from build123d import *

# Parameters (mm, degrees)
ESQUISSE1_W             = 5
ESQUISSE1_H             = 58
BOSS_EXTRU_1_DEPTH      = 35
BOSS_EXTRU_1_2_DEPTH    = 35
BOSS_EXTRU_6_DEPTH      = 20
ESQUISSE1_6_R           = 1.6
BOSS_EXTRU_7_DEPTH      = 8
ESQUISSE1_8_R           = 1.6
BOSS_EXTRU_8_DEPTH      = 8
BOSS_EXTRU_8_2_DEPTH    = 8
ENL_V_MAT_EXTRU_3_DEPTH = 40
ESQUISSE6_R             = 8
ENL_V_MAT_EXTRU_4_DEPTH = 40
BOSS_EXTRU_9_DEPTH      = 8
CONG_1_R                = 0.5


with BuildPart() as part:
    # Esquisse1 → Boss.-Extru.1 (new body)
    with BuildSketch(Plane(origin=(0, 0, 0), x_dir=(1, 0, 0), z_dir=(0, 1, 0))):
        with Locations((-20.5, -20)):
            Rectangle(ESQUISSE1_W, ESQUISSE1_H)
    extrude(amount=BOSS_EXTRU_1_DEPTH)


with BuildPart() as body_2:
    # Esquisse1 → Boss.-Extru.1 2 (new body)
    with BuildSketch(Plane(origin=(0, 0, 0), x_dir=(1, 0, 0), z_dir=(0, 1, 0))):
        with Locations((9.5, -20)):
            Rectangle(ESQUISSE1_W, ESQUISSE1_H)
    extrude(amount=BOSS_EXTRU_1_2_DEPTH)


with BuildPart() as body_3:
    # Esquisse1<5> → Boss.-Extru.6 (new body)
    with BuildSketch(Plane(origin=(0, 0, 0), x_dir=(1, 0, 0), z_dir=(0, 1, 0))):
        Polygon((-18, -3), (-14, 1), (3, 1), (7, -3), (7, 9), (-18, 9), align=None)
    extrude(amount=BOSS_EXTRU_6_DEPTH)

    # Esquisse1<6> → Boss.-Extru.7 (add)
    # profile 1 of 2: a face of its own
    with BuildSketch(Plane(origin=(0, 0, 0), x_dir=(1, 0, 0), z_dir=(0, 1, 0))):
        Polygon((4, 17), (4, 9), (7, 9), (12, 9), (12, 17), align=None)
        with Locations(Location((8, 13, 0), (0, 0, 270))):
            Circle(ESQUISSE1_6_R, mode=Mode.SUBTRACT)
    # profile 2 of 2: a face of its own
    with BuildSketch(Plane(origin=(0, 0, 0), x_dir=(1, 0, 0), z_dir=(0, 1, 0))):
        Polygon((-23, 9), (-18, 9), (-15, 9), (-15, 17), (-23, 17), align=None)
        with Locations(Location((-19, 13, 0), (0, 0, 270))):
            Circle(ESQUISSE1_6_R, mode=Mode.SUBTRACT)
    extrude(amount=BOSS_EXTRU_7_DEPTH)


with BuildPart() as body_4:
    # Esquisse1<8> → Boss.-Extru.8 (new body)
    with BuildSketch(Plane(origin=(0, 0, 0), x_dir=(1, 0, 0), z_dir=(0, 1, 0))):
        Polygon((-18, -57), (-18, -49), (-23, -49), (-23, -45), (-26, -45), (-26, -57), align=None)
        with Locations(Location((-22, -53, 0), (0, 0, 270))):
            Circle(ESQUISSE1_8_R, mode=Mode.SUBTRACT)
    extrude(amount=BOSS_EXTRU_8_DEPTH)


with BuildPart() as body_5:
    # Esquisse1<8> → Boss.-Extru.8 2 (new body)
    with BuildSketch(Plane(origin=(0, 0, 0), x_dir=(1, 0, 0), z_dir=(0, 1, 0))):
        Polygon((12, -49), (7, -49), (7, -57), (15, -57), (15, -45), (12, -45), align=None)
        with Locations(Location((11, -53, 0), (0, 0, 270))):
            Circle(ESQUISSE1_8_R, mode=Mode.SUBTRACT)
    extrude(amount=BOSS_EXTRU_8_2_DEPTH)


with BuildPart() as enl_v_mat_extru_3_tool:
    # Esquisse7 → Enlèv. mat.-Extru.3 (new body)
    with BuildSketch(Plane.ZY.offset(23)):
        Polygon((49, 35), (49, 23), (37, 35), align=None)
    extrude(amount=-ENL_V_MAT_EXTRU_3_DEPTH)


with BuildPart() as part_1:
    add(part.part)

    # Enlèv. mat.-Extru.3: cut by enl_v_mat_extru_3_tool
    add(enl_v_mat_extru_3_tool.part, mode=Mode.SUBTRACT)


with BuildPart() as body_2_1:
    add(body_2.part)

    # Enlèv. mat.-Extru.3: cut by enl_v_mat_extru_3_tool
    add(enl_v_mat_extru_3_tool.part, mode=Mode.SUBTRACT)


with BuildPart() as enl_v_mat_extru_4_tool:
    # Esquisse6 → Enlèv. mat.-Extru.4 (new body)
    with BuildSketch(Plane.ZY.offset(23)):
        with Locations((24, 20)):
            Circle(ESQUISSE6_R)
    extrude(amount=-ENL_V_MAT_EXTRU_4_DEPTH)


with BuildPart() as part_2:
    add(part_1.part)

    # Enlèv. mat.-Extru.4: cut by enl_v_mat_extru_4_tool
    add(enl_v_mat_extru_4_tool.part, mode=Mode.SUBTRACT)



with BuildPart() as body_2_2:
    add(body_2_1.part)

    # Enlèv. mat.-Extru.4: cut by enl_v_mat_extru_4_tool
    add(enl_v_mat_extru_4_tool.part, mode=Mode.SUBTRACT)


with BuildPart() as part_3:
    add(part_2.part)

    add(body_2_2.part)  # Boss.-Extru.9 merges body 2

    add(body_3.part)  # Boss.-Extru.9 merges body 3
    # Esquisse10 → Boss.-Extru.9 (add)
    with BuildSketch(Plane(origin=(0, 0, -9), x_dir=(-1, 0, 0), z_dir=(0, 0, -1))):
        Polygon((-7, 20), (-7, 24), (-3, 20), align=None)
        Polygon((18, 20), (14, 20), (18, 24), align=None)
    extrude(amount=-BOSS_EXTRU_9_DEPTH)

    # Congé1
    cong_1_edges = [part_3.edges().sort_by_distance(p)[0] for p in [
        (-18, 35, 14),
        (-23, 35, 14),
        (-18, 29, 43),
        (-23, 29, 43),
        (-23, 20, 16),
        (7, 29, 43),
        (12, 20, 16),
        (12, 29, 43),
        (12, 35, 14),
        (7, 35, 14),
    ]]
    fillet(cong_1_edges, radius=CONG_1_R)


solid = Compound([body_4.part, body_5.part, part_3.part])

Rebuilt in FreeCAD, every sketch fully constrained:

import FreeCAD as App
import Part
import Sketcher
Q = App.Units.Quantity


def edges_at(feature, points):
    """Names of the edges that pass closest to the given points."""
    edges = feature.Shape.Edges
    near = lambda p: min(range(len(edges)), key=lambda i: edges[i].distToShape(Part.Vertex(*p))[0])
    return sorted({f"Edge{near(p) + 1}" for p in points})


def add_polygon(sketch, points):
    """Adds a closed chain of lines whose ends are joined by coincident constraints."""
    first, n = sketch.GeometryCount, len(points)
    for a, b in zip(points, points[1:] + points[:1]):
        sketch.addGeometry(Part.LineSegment(App.Vector(*a, 0), App.Vector(*b, 0)), False)
    for i in range(n):
        sketch.addConstraint(Sketcher.Constraint("Coincident", first + i, 2, first + (i + 1) % n, 1))

doc = App.newDocument("Part")
body = doc.addObject("PartDesign::Body", "Body")

# Sketch on XZ plane
sketch1 = body.newObject("Sketcher::SketchObject", "Sketch")
sketch1.AttachmentSupport = (doc.getObject("XZ_Plane"), [""])
sketch1.MapMode = "FlatFace"
add_polygon(sketch1, [(-23, -9), (-23, 49), (-18, 49), (-18, -9)])  # lines 0-3
sketch1.addConstraint(Sketcher.Constraint("Vertical", 0))
sketch1.addConstraint(Sketcher.Constraint("Horizontal", 1))
sketch1.addConstraint(Sketcher.Constraint("Vertical", 2))
sketch1.addConstraint(Sketcher.Constraint("Horizontal", 3))
sketch1.addConstraint(Sketcher.Constraint("DistanceX", 1, 1, 1, 2, Q("5 mm")))
sketch1.addConstraint(Sketcher.Constraint("DistanceY", 0, 1, 0, 2, Q("58 mm")))
sketch1.addConstraint(Sketcher.Constraint("DistanceX", 0, 2, -1, 1, Q("23 mm")))
sketch1.addConstraint(Sketcher.Constraint("DistanceY", -1, 1, 0, 2, Q("49 mm")))
pad1 = body.newObject("PartDesign::Pad", "Pad")
pad1.Profile = sketch1
pad1.Length = 35
pad1.Reversed = True
body2 = doc.addObject("PartDesign::Body", "Body001")

# Sketch on XZ plane
sketch2 = body2.newObject("Sketcher::SketchObject", "Sketch001")
sketch2.AttachmentSupport = (doc.getObject("XZ_Plane001"), [""])
sketch2.MapMode = "FlatFace"
add_polygon(sketch2, [(7, -9), (7, 49), (12, 49), (12, -9)])  # lines 0-3
sketch2.addConstraint(Sketcher.Constraint("Vertical", 0))
sketch2.addConstraint(Sketcher.Constraint("Horizontal", 1))
sketch2.addConstraint(Sketcher.Constraint("Vertical", 2))
sketch2.addConstraint(Sketcher.Constraint("Horizontal", 3))
sketch2.addConstraint(Sketcher.Constraint("DistanceX", 1, 1, 1, 2, Q("5 mm")))
sketch2.addConstraint(Sketcher.Constraint("DistanceY", 0, 1, 0, 2, Q("58 mm")))
sketch2.addConstraint(Sketcher.Constraint("DistanceX", -1, 1, 0, 2, Q("7 mm")))
sketch2.addConstraint(Sketcher.Constraint("DistanceY", -1, 1, 0, 2, Q("49 mm")))
pad2 = body2.newObject("PartDesign::Pad", "Pad001")
pad2.Profile = sketch2
pad2.Length = 35
pad2.Reversed = True
body3 = doc.addObject("PartDesign::Body", "Body002")

# Sketch on XZ plane
sketch3 = body3.newObject("Sketcher::SketchObject", "Sketch002")
sketch3.AttachmentSupport = (doc.getObject("XZ_Plane002"), [""])
sketch3.MapMode = "FlatFace"
add_polygon(sketch3, [(-18, 3), (-14, -1), (3, -1), (7, 3), (7, -9), (-18, -9)])  # lines 0-5
sketch3.addConstraint(Sketcher.Constraint("Horizontal", 1))
sketch3.addConstraint(Sketcher.Constraint("Vertical", 3))
sketch3.addConstraint(Sketcher.Constraint("Horizontal", 4))
sketch3.addConstraint(Sketcher.Constraint("Vertical", 5))
sketch3.addConstraint(Sketcher.Constraint("Perpendicular", 0, 2))
sketch3.addConstraint(Sketcher.Constraint("Horizontal", 2, 2, 5, 2))
sketch3.addConstraint(Sketcher.Constraint("Equal", 0, 2))
sketch3.addConstraint(Sketcher.Constraint("DistanceX", 1, 1, 1, 2, Q("17 mm")))
sketch3.addConstraint(Sketcher.Constraint("DistanceX", 4, 2, 4, 1, Q("25 mm")))
sketch3.addConstraint(Sketcher.Constraint("DistanceY", 3, 2, 3, 1, Q("12 mm")))
sketch3.addConstraint(Sketcher.Constraint("DistanceX", 0, 2, -1, 1, Q("14 mm")))
sketch3.addConstraint(Sketcher.Constraint("DistanceY", 0, 2, -1, 1, Q("1 mm")))
pad3 = body3.newObject("PartDesign::Pad", "Pad002")
pad3.Profile = sketch3
pad3.Length = 20
pad3.Reversed = True

# Sketch on XZ plane
sketch4 = body3.newObject("Sketcher::SketchObject", "Sketch003")
sketch4.AttachmentSupport = (doc.getObject("XZ_Plane002"), [""])
sketch4.MapMode = "FlatFace"
add_polygon(sketch4, [(4, -17), (4, -9), (12, -9), (12, -17)])  # lines 0-3
sketch4.addGeometry(Part.Circle(App.Vector(8, -13, 0), App.Vector(0, 0, 1), 1.6), False)  # 4
add_polygon(sketch4, [(-23, -9), (-15, -9), (-15, -17), (-23, -17)])  # lines 5-8
sketch4.addGeometry(Part.Circle(App.Vector(-19, -13, 0), App.Vector(0, 0, 1), 1.6), False)  # 9
sketch4.addConstraint(Sketcher.Constraint("Vertical", 0))
sketch4.addConstraint(Sketcher.Constraint("Horizontal", 1))
sketch4.addConstraint(Sketcher.Constraint("Vertical", 2))
sketch4.addConstraint(Sketcher.Constraint("Horizontal", 3))
sketch4.addConstraint(Sketcher.Constraint("Horizontal", 5))
sketch4.addConstraint(Sketcher.Constraint("Vertical", 6))
sketch4.addConstraint(Sketcher.Constraint("Horizontal", 7))
sketch4.addConstraint(Sketcher.Constraint("Vertical", 8))
sketch4.addConstraint(Sketcher.Constraint("Equal", 4, 9))
sketch4.addConstraint(Sketcher.Constraint("Horizontal", 4, 3, 9, 3))
sketch4.addConstraint(Sketcher.Constraint("Horizontal", 1, 2, 5, 2))
sketch4.addConstraint(Sketcher.Constraint("Horizontal", 3, 2, 6, 2))
sketch4.addConstraint(Sketcher.Constraint("Equal", 3, 5))
sketch4.addConstraint(Sketcher.Constraint("Equal", 7, 0))
sketch4.addConstraint(Sketcher.Constraint("Diameter", 4, Q("3.2 mm")))
sketch4.addConstraint(Sketcher.Constraint("DistanceX", 1, 1, 1, 2, Q("8 mm")))
sketch4.addConstraint(Sketcher.Constraint("DistanceX", -1, 1, 4, 3, Q("8 mm")))
sketch4.addConstraint(Sketcher.Constraint("DistanceY", 4, 3, -1, 1, Q("13 mm")))
sketch4.addConstraint(Sketcher.Constraint("DistanceX", 9, 3, -1, 1, Q("19 mm")))
sketch4.addConstraint(Sketcher.Constraint("DistanceX", -1, 1, 0, 2, Q("4 mm")))
sketch4.addConstraint(Sketcher.Constraint("DistanceY", 0, 2, -1, 1, Q("9 mm")))
sketch4.addConstraint(Sketcher.Constraint("DistanceX", 5, 2, -1, 1, Q("15 mm")))
pad4 = body3.newObject("PartDesign::Pad", "Pad003")
pad4.Profile = sketch4
pad4.Length = 8
pad4.Reversed = True
body4 = doc.addObject("PartDesign::Body", "Body003")

# Sketch on XZ plane
sketch5 = body4.newObject("Sketcher::SketchObject", "Sketch004")
sketch5.AttachmentSupport = (doc.getObject("XZ_Plane003"), [""])
sketch5.MapMode = "FlatFace"
add_polygon(sketch5, [(-18, 57), (-18, 49), (-23, 49), (-23, 45), (-26, 45), (-26, 57)])  # lines 0-5
sketch5.addGeometry(Part.Circle(App.Vector(-22, 53, 0), App.Vector(0, 0, 1), 1.6), False)  # 6
sketch5.addConstraint(Sketcher.Constraint("Vertical", 0))
sketch5.addConstraint(Sketcher.Constraint("Horizontal", 1))
sketch5.addConstraint(Sketcher.Constraint("Vertical", 2))
sketch5.addConstraint(Sketcher.Constraint("Horizontal", 3))
sketch5.addConstraint(Sketcher.Constraint("Vertical", 4))
sketch5.addConstraint(Sketcher.Constraint("Horizontal", 5))
sketch5.addConstraint(Sketcher.Constraint("Equal", 5, 0))
sketch5.addConstraint(Sketcher.Constraint("Diameter", 6, Q("3.2 mm")))
sketch5.addConstraint(Sketcher.Constraint("DistanceX", 1, 2, 1, 1, Q("5 mm")))
sketch5.addConstraint(Sketcher.Constraint("DistanceX", 3, 2, 3, 1, Q("3 mm")))
sketch5.addConstraint(Sketcher.Constraint("DistanceY", 2, 2, 2, 1, Q("4 mm")))
sketch5.addConstraint(Sketcher.Constraint("DistanceX", 6, 3, -1, 1, Q("22 mm")))
sketch5.addConstraint(Sketcher.Constraint("DistanceY", -1, 1, 6, 3, Q("53 mm")))
sketch5.addConstraint(Sketcher.Constraint("DistanceX", 0, 2, -1, 1, Q("18 mm")))
sketch5.addConstraint(Sketcher.Constraint("DistanceY", -1, 1, 0, 2, Q("49 mm")))
pad5 = body4.newObject("PartDesign::Pad", "Pad004")
pad5.Profile = sketch5
pad5.Length = 8
pad5.Reversed = True
body5 = doc.addObject("PartDesign::Body", "Body004")

# Sketch on XZ plane
sketch6 = body5.newObject("Sketcher::SketchObject", "Sketch005")
sketch6.AttachmentSupport = (doc.getObject("XZ_Plane004"), [""])
sketch6.MapMode = "FlatFace"
add_polygon(sketch6, [(12, 49), (7, 49), (7, 57), (15, 57), (15, 45), (12, 45)])  # lines 0-5
sketch6.addGeometry(Part.Circle(App.Vector(11, 53, 0), App.Vector(0, 0, 1), 1.6), False)  # 6
sketch6.addConstraint(Sketcher.Constraint("Horizontal", 0))
sketch6.addConstraint(Sketcher.Constraint("Vertical", 1))
sketch6.addConstraint(Sketcher.Constraint("Horizontal", 2))
sketch6.addConstraint(Sketcher.Constraint("Vertical", 3))
sketch6.addConstraint(Sketcher.Constraint("Horizontal", 4))
sketch6.addConstraint(Sketcher.Constraint("Vertical", 5))
sketch6.addConstraint(Sketcher.Constraint("Equal", 2, 1))
sketch6.addConstraint(Sketcher.Constraint("Diameter", 6, Q("3.2 mm")))
sketch6.addConstraint(Sketcher.Constraint("DistanceX", 0, 2, 0, 1, Q("5 mm")))
sketch6.addConstraint(Sketcher.Constraint("DistanceX", 2, 1, 2, 2, Q("8 mm")))
sketch6.addConstraint(Sketcher.Constraint("DistanceY", 3, 2, 3, 1, Q("12 mm")))
sketch6.addConstraint(Sketcher.Constraint("DistanceX", -1, 1, 6, 3, Q("11 mm")))
sketch6.addConstraint(Sketcher.Constraint("DistanceY", -1, 1, 6, 3, Q("53 mm")))
sketch6.addConstraint(Sketcher.Constraint("DistanceX", -1, 1, 0, 2, Q("7 mm")))
sketch6.addConstraint(Sketcher.Constraint("DistanceY", -1, 1, 0, 2, Q("49 mm")))
pad6 = body5.newObject("PartDesign::Pad", "Pad005")
pad6.Profile = sketch6
pad6.Length = 8
pad6.Reversed = True
body6 = doc.addObject("PartDesign::Body", "Body005")

# Sketch on YZ plane
sketch7 = body6.newObject("Sketcher::SketchObject", "Sketch006")
sketch7.AttachmentSupport = (doc.getObject("YZ_Plane005"), [""])
sketch7.MapMode = "FlatFace"
sketch7.AttachmentOffset = App.Placement(App.Vector(0, 0, -23), App.Rotation())
add_polygon(sketch7, [(23, 49), (35, 49), (35, 37)])  # lines 0-2
sketch7.addConstraint(Sketcher.Constraint("Horizontal", 0))
sketch7.addConstraint(Sketcher.Constraint("Vertical", 1))
sketch7.addConstraint(Sketcher.Constraint("Equal", 0, 1))
sketch7.addConstraint(Sketcher.Constraint("DistanceX", 0, 1, 0, 2, Q("12 mm")))
sketch7.addConstraint(Sketcher.Constraint("DistanceX", -1, 1, 0, 2, Q("35 mm")))
sketch7.addConstraint(Sketcher.Constraint("DistanceY", -1, 1, 0, 2, Q("49 mm")))
pad7 = body6.newObject("PartDesign::Pad", "Pad006")
pad7.Profile = sketch7
pad7.Length = 40
doc.recompute()

body7 = doc.addObject("PartDesign::Body", "Body006")
body7.BaseFeature = body6
boolean = body.newObject("PartDesign::Boolean", "Boolean")
boolean.Type = "Cut"
boolean.addObjects([body7])
doc.recompute()

boolean2 = body2.newObject("PartDesign::Boolean", "Boolean001")
boolean2.Type = "Cut"
boolean2.addObjects([body6])
body8 = doc.addObject("PartDesign::Body", "Body007")

# Sketch on YZ plane
sketch8 = body8.newObject("Sketcher::SketchObject", "Sketch007")
sketch8.AttachmentSupport = (doc.getObject("YZ_Plane007"), [""])
sketch8.MapMode = "FlatFace"
sketch8.AttachmentOffset = App.Placement(App.Vector(0, 0, -23), App.Rotation())
sketch8.addGeometry(Part.Circle(App.Vector(20, 24, 0), App.Vector(0, 0, 1), 8), False)
sketch8.addConstraint(Sketcher.Constraint("Diameter", 0, Q("16 mm")))
sketch8.addConstraint(Sketcher.Constraint("DistanceX", -1, 1, 0, 3, Q("20 mm")))
sketch8.addConstraint(Sketcher.Constraint("DistanceY", -1, 1, 0, 3, Q("24 mm")))
pad8 = body8.newObject("PartDesign::Pad", "Pad007")
pad8.Profile = sketch8
pad8.Length = 40
doc.recompute()

body9 = doc.addObject("PartDesign::Body", "Body008")
body9.BaseFeature = body8
boolean3 = body.newObject("PartDesign::Boolean", "Boolean002")
boolean3.Type = "Cut"
boolean3.addObjects([body9])
doc.recompute()

boolean4 = body2.newObject("PartDesign::Boolean", "Boolean003")
boolean4.Type = "Cut"
boolean4.addObjects([body8])
body.AllowCompound = True
doc.recompute()

boolean5 = body.newObject("PartDesign::Boolean", "Boolean004")
boolean5.Type = "Fuse"
boolean5.addObjects([body2])
doc.recompute()

boolean6 = body.newObject("PartDesign::Boolean", "Boolean005")
boolean6.Type = "Fuse"
boolean6.addObjects([body3])

# Sketch on XY plane
sketch9 = body.newObject("Sketcher::SketchObject", "Sketch008")
sketch9.AttachmentSupport = (doc.getObject("XY_Plane"), [""])
sketch9.MapMode = "FlatFace"
sketch9.AttachmentOffset = App.Placement(App.Vector(0, 0, -9), App.Rotation())
add_polygon(sketch9, [(7, 24), (7, 20), (3, 20)])  # lines 0-2
add_polygon(sketch9, [(-14, 20), (-18, 20), (-18, 24)])  # lines 3-5
sketch9.addConstraint(Sketcher.Constraint("Vertical", 0))
sketch9.addConstraint(Sketcher.Constraint("Horizontal", 1))
sketch9.addConstraint(Sketcher.Constraint("Horizontal", 3))
sketch9.addConstraint(Sketcher.Constraint("Vertical", 4))
sketch9.addConstraint(Sketcher.Constraint("Perpendicular", 2, 5))
sketch9.addConstraint(Sketcher.Constraint("Horizontal", 1, 2, 3, 2))
sketch9.addConstraint(Sketcher.Constraint("Horizontal", 2, 2, 4, 2))
sketch9.addConstraint(Sketcher.Constraint("Equal", 1, 3))
sketch9.addConstraint(Sketcher.Constraint("DistanceX", 1, 2, 1, 1, Q("4 mm")))
sketch9.addConstraint(Sketcher.Constraint("DistanceX", -1, 1, 0, 2, Q("7 mm")))
sketch9.addConstraint(Sketcher.Constraint("DistanceY", -1, 1, 0, 2, Q("20 mm")))
sketch9.addConstraint(Sketcher.Constraint("DistanceX", 3, 2, -1, 1, Q("18 mm")))
pad9 = body.newObject("PartDesign::Pad", "Pad008")
pad9.Profile = sketch9
pad9.Length = 8
doc.recompute()

fillet = body.newObject("PartDesign::Fillet", "Fillet")
fillet.Base = (pad9, edges_at(pad9, [
    (-18, 35, 14),
    (-23, 35, 14),
    (-18, 29, 43),
    (-23, 29, 43),
    (-23, 20, 16),
    (7, 29, 43),
    (12, 20, 16),
    (12, 29, 43),
    (12, 35, 14),
    (7, 35, 14),
]))
fillet.Radius = 0.5

doc.recompute()
